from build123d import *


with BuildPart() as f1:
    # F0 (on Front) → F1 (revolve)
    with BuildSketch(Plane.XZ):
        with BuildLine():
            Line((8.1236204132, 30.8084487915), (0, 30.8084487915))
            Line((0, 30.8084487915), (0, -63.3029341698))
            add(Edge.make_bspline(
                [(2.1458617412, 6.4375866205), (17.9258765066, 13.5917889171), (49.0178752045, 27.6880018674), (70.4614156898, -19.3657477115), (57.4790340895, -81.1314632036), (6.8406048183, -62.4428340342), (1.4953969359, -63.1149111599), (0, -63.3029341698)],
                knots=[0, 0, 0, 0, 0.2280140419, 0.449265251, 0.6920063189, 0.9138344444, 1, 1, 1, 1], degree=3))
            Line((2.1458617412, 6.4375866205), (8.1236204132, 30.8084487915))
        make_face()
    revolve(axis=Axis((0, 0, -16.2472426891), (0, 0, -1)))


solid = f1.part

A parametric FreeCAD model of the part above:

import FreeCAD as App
import Part
import Sketcher

doc = App.newDocument("Part")
body = doc.addObject("PartDesign::Body", "Body")

# Sketch on XZ plane
sketch1 = doc.addObject("Sketcher::SketchObject", "Sketch")
body.addObject(sketch1)
sketch1.AttachmentSupport = (doc.XZ_Plane, [""])
sketch1.MapMode = "FlatFace"
sketch1.addGeometry([
    Part.LineSegment(App.Vector(8.12362, 30.808449, 0), App.Vector(0, 30.808449, 0)),
    Part.LineSegment(App.Vector(0, 30.808449, 0), App.Vector(0, -63.302934, 0)),
    Part.BSplineCurve([App.Vector(2.145862, 6.437587, 0), App.Vector(17.925877, 13.591789, 0), App.Vector(49.017875, 27.688002, 0), App.Vector(70.461416, -19.365748, 0), App.Vector(57.479034, -81.131463, 0), App.Vector(6.840605, -62.442834, 0), App.Vector(1.495397, -63.114911, 0), App.Vector(0, -63.302934, 0)], [4, 1, 1, 1, 1, 4], [0, 0.228014042, 0.449265251, 0.692006319, 0.913834444, 1], False, 3, [1, 1, 1, 1, 1, 1, 1, 1], False),
    Part.LineSegment(App.Vector(2.145862, 6.437587, 0), App.Vector(8.12362, 30.808449, 0)),
], False)
sketch1.addConstraint([
    Sketcher.Constraint("Block", 2),
    Sketcher.Constraint("Coincident", 0, 2, 1, 1),
    Sketcher.Constraint("Coincident", 1, 2, 2, 2),
    Sketcher.Constraint("Coincident", 2, 1, 3, 1),
    Sketcher.Constraint("Coincident", 3, 2, 0, 1),
    Sketcher.Constraint("Horizontal", 0),
    Sketcher.Constraint("Vertical", 1),
    Sketcher.Constraint("DistanceX", 0, 2, 0, 1, 8.12362),
    Sketcher.Constraint("DistanceY", 1, 2, 1, 1, 94.111383),
])
revolution = doc.addObject("PartDesign::Revolution", "Revolution")
body.addObject(revolution)
revolution.Profile = sketch1
revolution.ReferenceAxis = (sketch1, ["V_Axis"])
revolution.Angle = 360

doc.recompute()
